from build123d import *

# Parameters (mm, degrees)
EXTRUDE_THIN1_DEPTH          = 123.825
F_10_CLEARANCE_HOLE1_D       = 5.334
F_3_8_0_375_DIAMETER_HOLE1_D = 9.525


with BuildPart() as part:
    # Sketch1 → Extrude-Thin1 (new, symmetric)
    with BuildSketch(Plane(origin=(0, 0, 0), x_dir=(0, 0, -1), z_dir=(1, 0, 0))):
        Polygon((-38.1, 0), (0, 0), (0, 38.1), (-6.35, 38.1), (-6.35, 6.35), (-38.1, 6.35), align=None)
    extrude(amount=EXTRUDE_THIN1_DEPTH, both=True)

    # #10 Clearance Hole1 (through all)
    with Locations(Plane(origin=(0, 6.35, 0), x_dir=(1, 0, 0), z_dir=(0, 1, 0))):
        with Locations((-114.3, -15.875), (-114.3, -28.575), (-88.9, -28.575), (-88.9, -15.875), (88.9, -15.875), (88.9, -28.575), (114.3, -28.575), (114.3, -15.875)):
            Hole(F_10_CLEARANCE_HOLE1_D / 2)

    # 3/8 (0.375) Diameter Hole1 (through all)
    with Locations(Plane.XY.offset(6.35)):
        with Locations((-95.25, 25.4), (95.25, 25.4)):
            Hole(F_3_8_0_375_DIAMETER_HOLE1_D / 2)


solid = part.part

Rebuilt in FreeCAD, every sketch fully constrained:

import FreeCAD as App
import Part
import Sketcher
from FreeCAD import Vector
Q = App.Units.Quantity


def add_polygon(sketch, points):
    """Adds a closed chain of lines whose ends are joined by coincident constraints."""
    first, n = sketch.GeometryCount, len(points)
    for a, b in zip(points, points[1:] + points[:1]):
        sketch.addGeometry(Part.LineSegment(App.Vector(*a, 0), App.Vector(*b, 0)), False)
    for i in range(n):
        sketch.addConstraint(Sketcher.Constraint("Coincident", first + i, 2, first + (i + 1) % n, 1))

doc = App.newDocument("Part")
body = doc.addObject("PartDesign::Body", "Body")

# Sketch on YZ plane
sketch1 = doc.addObject("Sketcher::SketchObject", "Sketch")
body.addObject(sketch1)
sketch1.AttachmentSupport = (doc.YZ_Plane, [""])
sketch1.MapMode = "FlatFace"
add_polygon(sketch1, [(0, 38.1), (0, 0), (38.1, 0), (38.1, 6.35), (6.35, 6.35), (6.35, 38.1)])  # lines 0-5
sketch1.addConstraint(Sketcher.Constraint("Vertical", 0))
sketch1.addConstraint(Sketcher.Constraint("Horizontal", 1))
sketch1.addConstraint(Sketcher.Constraint("Vertical", 2))
sketch1.addConstraint(Sketcher.Constraint("Horizontal", 3))
sketch1.addConstraint(Sketcher.Constraint("Vertical", 4))
sketch1.addConstraint(Sketcher.Constraint("Horizontal", 5))
sketch1.addConstraint(Sketcher.Constraint("Coincident", 0, 2, -1, 1))
sketch1.addConstraint(Sketcher.Constraint("Equal", 1, 0))
sketch1.addConstraint(Sketcher.Constraint("Equal", 5, 2))
sketch1.addConstraint(Sketcher.Constraint("DistanceX", 1, 1, 1, 2, Q("1.5 in")))
sketch1.addConstraint(Sketcher.Constraint("DistanceX", 3, 2, 3, 1, Q("1.25 in")))
pad1 = doc.addObject("PartDesign::Pad", "Pad")
body.addObject(pad1)
pad1.Profile = sketch1
pad1.Length = Q("9.75 in")
pad1.Midplane = True

# Sketch on XZ plane
sketch2 = doc.addObject("Sketcher::SketchObject", "Sketch001")
body.addObject(sketch2)
sketch2.AttachmentSupport = (doc.XZ_Plane, [""])
sketch2.MapMode = "FlatFace"
sketch2.AttachmentOffset = App.Placement(Vector(0, 0, -0.25 * 25.4), App.Rotation())
sketch2.addGeometry(Part.Circle(Vector(-114.3, 15.875, 0), Vector(0, 0, 1), 2.667), False)
sketch2.addGeometry(Part.Circle(Vector(-114.3, 28.575, 0), Vector(0, 0, 1), 2.667), False)
sketch2.addGeometry(Part.Circle(Vector(-88.9, 28.575, 0), Vector(0, 0, 1), 2.667), False)
sketch2.addGeometry(Part.Circle(Vector(-88.9, 15.875, 0), Vector(0, 0, 1), 2.667), False)
sketch2.addGeometry(Part.Circle(Vector(88.9, 15.875, 0), Vector(0, 0, 1), 2.667), False)
sketch2.addGeometry(Part.Circle(Vector(88.9, 28.575, 0), Vector(0, 0, 1), 2.667), False)
sketch2.addGeometry(Part.Circle(Vector(114.3, 28.575, 0), Vector(0, 0, 1), 2.667), False)
sketch2.addGeometry(Part.Circle(Vector(114.3, 15.875, 0), Vector(0, 0, 1), 2.667), False)
sketch2.addConstraint(Sketcher.Constraint("Equal", 0, 1))
sketch2.addConstraint(Sketcher.Constraint("Equal", 1, 2))
sketch2.addConstraint(Sketcher.Constraint("Equal", 2, 3))
sketch2.addConstraint(Sketcher.Constraint("Equal", 3, 4))
sketch2.addConstraint(Sketcher.Constraint("Equal", 4, 5))
sketch2.addConstraint(Sketcher.Constraint("Equal", 5, 6))
sketch2.addConstraint(Sketcher.Constraint("Equal", 6, 7))
sketch2.addConstraint(Sketcher.Constraint("Symmetric", 3, 3, 4, 3, -2))
sketch2.addConstraint(Sketcher.Constraint("Symmetric", 2, 3, 5, 3, -2))
sketch2.addConstraint(Sketcher.Constraint("Symmetric", 1, 3, 6, 3, -2))
sketch2.addConstraint(Sketcher.Constraint("Symmetric", 0, 3, 7, 3, -2))
sketch2.addConstraint(Sketcher.Constraint("Horizontal", 1, 3, 2, 3))
sketch2.addConstraint(Sketcher.Constraint("Horizontal", 0, 3, 3, 3))
sketch2.addConstraint(Sketcher.Constraint("Vertical", 0, 3, 1, 3))
sketch2.addConstraint(Sketcher.Constraint("Vertical", 2, 3, 3, 3))
sketch2.addConstraint(Sketcher.Constraint("Diameter", 0, Q("0.21 in")))
sketch2.addConstraint(Sketcher.Constraint("DistanceX", 1, 3, 2, 3, Q("1 in")))
sketch2.addConstraint(Sketcher.Constraint("DistanceX", 3, 3, 4, 3, Q("7 in")))
sketch2.addConstraint(Sketcher.Constraint("DistanceY", 0, 3, 1, 3, Q("0.5 in")))
sketch2.addConstraint(Sketcher.Constraint("DistanceY", -1, 1, 0, 3, Q("0.625 in")))
doc.recompute()
hole = doc.addObject("PartDesign::Hole", "Hole")
body.addObject(hole)
hole.Profile = sketch2
hole.ThreadType = "None"
hole.Diameter = Q("0.21 in")
hole.DepthType = "ThroughAll"
hole.Reversed = True

# Sketch on XY plane
sketch3 = doc.addObject("Sketcher::SketchObject", "Sketch002")
body.addObject(sketch3)
sketch3.AttachmentSupport = (doc.XY_Plane, [""])
sketch3.MapMode = "FlatFace"
sketch3.AttachmentOffset = App.Placement(Vector(0, 0, 0.25 * 25.4), App.Rotation())
sketch3.addGeometry(Part.Circle(Vector(-95.25, 25.4, 0), Vector(0, 0, 1), 4.7625), False)
sketch3.addGeometry(Part.Circle(Vector(95.25, 25.4, 0), Vector(0, 0, 1), 4.7625), False)
sketch3.addConstraint(Sketcher.Constraint("Equal", 0, 1))
sketch3.addConstraint(Sketcher.Constraint("Symmetric", 0, 3, 1, 3, -2))
sketch3.addConstraint(Sketcher.Constraint("Diameter", 0, Q("0.375 in")))
sketch3.addConstraint(Sketcher.Constraint("DistanceY", -1, 1, 0, 3, Q("1 in")))
sketch3.addConstraint(Sketcher.Constraint("DistanceX", 0, 3, 1, 3, Q("7.5 in")))
doc.recompute()
hole2 = doc.addObject("PartDesign::Hole", "Hole001")
body.addObject(hole2)
hole2.Profile = sketch3
hole2.ThreadType = "None"
hole2.Diameter = Q("0.375 in")
hole2.DepthType = "ThroughAll"

doc.recompute()
